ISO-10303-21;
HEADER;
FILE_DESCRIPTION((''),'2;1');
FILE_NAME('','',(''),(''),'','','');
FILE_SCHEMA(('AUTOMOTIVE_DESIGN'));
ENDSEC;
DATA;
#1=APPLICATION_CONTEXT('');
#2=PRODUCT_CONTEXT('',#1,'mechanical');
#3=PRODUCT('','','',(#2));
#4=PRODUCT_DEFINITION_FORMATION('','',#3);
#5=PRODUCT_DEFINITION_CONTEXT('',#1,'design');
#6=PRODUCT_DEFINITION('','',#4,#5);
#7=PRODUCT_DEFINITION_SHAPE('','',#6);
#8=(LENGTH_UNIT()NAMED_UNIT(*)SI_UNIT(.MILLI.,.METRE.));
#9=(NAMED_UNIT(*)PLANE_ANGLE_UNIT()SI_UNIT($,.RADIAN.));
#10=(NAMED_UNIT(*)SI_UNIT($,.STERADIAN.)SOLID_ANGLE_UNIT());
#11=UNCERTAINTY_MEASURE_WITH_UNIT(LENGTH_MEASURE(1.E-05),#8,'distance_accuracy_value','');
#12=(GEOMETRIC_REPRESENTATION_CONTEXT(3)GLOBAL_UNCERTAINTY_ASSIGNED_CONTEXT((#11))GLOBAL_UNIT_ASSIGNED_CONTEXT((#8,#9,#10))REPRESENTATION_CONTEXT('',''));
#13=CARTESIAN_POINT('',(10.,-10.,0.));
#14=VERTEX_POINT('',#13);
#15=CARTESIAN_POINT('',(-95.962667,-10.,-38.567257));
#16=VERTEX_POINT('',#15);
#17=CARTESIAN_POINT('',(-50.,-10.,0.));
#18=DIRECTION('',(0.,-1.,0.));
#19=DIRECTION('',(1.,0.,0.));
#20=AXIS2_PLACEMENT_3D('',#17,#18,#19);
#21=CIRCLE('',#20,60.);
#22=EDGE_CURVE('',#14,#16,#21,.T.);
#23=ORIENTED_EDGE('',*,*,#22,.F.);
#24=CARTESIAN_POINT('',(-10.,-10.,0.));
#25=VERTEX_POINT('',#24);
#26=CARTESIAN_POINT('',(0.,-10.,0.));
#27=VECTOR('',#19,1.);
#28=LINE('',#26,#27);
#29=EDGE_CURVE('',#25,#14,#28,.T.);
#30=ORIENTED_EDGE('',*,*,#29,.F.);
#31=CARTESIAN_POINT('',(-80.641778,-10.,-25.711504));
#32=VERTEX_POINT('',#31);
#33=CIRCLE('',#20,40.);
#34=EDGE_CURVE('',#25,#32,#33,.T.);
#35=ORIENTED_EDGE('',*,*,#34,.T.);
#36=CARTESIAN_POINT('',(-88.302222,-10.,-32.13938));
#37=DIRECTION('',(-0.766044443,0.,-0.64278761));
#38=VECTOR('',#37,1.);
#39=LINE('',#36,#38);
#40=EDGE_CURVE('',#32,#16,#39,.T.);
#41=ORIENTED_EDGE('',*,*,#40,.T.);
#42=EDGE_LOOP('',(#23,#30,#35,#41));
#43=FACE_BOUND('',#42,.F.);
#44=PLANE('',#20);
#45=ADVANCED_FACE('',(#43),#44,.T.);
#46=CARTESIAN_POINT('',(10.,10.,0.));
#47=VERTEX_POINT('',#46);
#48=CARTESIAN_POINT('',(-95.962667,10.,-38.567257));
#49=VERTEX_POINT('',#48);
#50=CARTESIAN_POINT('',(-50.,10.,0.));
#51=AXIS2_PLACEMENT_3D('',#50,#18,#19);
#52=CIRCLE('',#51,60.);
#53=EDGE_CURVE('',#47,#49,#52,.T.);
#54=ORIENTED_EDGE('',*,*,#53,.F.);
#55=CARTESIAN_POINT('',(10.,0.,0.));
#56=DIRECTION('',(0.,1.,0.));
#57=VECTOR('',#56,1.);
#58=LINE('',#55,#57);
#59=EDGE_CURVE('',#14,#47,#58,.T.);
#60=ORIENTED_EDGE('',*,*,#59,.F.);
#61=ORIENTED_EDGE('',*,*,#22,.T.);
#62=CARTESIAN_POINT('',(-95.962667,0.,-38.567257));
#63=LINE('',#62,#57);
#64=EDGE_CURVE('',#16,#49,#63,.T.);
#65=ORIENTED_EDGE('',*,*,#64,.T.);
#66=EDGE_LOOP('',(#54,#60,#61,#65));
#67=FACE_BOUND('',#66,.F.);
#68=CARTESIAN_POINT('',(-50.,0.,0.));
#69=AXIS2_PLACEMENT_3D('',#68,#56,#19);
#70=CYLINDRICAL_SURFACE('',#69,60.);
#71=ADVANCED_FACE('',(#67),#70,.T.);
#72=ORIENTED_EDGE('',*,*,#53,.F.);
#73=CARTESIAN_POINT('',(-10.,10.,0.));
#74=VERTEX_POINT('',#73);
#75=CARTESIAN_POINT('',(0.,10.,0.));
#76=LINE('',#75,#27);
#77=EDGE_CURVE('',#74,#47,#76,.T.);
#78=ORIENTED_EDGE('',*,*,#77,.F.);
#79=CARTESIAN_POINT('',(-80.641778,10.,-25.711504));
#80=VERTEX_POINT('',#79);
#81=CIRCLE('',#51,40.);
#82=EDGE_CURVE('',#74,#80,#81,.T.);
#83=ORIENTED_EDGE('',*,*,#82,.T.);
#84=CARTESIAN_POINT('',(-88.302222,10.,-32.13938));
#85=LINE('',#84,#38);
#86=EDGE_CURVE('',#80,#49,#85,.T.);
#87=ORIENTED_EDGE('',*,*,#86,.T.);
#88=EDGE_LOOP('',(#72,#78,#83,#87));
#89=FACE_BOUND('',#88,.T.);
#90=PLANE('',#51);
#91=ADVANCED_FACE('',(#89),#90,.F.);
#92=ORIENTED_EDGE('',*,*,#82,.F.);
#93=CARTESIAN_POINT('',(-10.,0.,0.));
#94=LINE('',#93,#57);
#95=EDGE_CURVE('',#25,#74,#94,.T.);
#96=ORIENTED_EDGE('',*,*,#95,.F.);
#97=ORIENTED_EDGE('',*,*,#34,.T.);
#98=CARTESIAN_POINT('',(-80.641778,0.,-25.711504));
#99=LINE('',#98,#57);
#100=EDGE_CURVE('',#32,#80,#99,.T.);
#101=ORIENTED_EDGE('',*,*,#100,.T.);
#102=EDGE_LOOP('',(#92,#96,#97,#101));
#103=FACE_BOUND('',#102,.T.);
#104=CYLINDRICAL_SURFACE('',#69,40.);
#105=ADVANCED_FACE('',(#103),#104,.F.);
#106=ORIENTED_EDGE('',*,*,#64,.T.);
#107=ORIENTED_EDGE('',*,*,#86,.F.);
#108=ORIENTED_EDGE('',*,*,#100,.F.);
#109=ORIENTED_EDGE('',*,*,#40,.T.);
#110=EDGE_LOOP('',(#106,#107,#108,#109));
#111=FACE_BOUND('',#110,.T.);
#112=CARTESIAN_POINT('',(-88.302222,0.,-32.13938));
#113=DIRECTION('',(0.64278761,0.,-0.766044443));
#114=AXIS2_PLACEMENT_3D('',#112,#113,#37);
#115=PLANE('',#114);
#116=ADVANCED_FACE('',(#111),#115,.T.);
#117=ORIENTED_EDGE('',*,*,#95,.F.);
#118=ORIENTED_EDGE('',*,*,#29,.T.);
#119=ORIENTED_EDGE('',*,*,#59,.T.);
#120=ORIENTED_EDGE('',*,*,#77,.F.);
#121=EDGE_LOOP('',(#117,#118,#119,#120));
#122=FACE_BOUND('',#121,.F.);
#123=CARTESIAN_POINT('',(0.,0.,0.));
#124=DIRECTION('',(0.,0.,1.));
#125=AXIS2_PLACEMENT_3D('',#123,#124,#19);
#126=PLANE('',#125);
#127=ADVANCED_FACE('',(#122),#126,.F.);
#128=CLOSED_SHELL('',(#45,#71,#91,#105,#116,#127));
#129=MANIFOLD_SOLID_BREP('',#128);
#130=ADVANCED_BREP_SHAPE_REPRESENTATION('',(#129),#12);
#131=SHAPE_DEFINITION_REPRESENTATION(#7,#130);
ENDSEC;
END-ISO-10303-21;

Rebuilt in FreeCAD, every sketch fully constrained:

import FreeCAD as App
import Part
import Sketcher

V = App.Vector
Q = App.Units.Quantity


def add_polygon(sketch, points):
    """Adds a closed chain of lines whose ends are joined by coincident constraints."""
    first, n = sketch.GeometryCount, len(points)
    for a, b in zip(points, points[1:] + points[:1]):
        sketch.addGeometry(Part.LineSegment(App.Vector(*a, 0), App.Vector(*b, 0)), False)
    for i in range(n):
        sketch.addConstraint(Sketcher.Constraint("Coincident", first + i, 2, first + (i + 1) % n, 1))

doc = App.newDocument("Part")
params = doc.addObject("Spreadsheet::Sheet", "Params")
for row, (alias, value) in enumerate([
    ("sketch1_width", "20 mm"),
    ("revolution_angle", "220 deg"),
], start=1):
    params.set(f"A{row}", alias)
    params.set(f"B{row}", "=" + value)
    params.setAlias(f"B{row}", alias)

body = doc.addObject("PartDesign::Body", "Body")

sketch1 = body.newObject("Sketcher::SketchObject", "Sketch")
sketch1.AttachmentSupport = (doc.getObject("XY_Plane"), [""])
sketch1.MapMode = "FlatFace"
add_polygon(sketch1, [(-10, 10), (-10, -10), (10, -10), (10, 10)])
sketch1.addGeometry(Part.LineSegment(V(-50, 10, 0), V(-50, -10, 0)), True)
sketch1.addConstraint([
    Sketcher.Constraint("Vertical", 0),
    Sketcher.Constraint("Horizontal", 1),
    Sketcher.Constraint("Vertical", 2),
    Sketcher.Constraint("Horizontal", 3),
    Sketcher.Constraint("Vertical", 4),
    Sketcher.Constraint("Symmetric", 0, 2, 2, 2, -1, 1),
    Sketcher.Constraint("Horizontal", 3, 2, 4, 1),
    Sketcher.Constraint("Horizontal", 1, 2, 4, 2),
    Sketcher.Constraint("Equal", 3, 0),
    Sketcher.Constraint("DistanceX", 1, 1, 1, 2, Q("20 mm")),
    Sketcher.Constraint("DistanceX", 4, 1, -1, 1, Q("50 mm")),
])
sketch1.setExpression("Constraints[13]", "Params.sketch1_width")
revolution = body.newObject("PartDesign::Revolution", "Revolution")
revolution.Profile = sketch1
revolution.ReferenceAxis = (sketch1, ["Axis0"])
revolution.setExpression("Angle", "Params.revolution_angle")

doc.recompute()
